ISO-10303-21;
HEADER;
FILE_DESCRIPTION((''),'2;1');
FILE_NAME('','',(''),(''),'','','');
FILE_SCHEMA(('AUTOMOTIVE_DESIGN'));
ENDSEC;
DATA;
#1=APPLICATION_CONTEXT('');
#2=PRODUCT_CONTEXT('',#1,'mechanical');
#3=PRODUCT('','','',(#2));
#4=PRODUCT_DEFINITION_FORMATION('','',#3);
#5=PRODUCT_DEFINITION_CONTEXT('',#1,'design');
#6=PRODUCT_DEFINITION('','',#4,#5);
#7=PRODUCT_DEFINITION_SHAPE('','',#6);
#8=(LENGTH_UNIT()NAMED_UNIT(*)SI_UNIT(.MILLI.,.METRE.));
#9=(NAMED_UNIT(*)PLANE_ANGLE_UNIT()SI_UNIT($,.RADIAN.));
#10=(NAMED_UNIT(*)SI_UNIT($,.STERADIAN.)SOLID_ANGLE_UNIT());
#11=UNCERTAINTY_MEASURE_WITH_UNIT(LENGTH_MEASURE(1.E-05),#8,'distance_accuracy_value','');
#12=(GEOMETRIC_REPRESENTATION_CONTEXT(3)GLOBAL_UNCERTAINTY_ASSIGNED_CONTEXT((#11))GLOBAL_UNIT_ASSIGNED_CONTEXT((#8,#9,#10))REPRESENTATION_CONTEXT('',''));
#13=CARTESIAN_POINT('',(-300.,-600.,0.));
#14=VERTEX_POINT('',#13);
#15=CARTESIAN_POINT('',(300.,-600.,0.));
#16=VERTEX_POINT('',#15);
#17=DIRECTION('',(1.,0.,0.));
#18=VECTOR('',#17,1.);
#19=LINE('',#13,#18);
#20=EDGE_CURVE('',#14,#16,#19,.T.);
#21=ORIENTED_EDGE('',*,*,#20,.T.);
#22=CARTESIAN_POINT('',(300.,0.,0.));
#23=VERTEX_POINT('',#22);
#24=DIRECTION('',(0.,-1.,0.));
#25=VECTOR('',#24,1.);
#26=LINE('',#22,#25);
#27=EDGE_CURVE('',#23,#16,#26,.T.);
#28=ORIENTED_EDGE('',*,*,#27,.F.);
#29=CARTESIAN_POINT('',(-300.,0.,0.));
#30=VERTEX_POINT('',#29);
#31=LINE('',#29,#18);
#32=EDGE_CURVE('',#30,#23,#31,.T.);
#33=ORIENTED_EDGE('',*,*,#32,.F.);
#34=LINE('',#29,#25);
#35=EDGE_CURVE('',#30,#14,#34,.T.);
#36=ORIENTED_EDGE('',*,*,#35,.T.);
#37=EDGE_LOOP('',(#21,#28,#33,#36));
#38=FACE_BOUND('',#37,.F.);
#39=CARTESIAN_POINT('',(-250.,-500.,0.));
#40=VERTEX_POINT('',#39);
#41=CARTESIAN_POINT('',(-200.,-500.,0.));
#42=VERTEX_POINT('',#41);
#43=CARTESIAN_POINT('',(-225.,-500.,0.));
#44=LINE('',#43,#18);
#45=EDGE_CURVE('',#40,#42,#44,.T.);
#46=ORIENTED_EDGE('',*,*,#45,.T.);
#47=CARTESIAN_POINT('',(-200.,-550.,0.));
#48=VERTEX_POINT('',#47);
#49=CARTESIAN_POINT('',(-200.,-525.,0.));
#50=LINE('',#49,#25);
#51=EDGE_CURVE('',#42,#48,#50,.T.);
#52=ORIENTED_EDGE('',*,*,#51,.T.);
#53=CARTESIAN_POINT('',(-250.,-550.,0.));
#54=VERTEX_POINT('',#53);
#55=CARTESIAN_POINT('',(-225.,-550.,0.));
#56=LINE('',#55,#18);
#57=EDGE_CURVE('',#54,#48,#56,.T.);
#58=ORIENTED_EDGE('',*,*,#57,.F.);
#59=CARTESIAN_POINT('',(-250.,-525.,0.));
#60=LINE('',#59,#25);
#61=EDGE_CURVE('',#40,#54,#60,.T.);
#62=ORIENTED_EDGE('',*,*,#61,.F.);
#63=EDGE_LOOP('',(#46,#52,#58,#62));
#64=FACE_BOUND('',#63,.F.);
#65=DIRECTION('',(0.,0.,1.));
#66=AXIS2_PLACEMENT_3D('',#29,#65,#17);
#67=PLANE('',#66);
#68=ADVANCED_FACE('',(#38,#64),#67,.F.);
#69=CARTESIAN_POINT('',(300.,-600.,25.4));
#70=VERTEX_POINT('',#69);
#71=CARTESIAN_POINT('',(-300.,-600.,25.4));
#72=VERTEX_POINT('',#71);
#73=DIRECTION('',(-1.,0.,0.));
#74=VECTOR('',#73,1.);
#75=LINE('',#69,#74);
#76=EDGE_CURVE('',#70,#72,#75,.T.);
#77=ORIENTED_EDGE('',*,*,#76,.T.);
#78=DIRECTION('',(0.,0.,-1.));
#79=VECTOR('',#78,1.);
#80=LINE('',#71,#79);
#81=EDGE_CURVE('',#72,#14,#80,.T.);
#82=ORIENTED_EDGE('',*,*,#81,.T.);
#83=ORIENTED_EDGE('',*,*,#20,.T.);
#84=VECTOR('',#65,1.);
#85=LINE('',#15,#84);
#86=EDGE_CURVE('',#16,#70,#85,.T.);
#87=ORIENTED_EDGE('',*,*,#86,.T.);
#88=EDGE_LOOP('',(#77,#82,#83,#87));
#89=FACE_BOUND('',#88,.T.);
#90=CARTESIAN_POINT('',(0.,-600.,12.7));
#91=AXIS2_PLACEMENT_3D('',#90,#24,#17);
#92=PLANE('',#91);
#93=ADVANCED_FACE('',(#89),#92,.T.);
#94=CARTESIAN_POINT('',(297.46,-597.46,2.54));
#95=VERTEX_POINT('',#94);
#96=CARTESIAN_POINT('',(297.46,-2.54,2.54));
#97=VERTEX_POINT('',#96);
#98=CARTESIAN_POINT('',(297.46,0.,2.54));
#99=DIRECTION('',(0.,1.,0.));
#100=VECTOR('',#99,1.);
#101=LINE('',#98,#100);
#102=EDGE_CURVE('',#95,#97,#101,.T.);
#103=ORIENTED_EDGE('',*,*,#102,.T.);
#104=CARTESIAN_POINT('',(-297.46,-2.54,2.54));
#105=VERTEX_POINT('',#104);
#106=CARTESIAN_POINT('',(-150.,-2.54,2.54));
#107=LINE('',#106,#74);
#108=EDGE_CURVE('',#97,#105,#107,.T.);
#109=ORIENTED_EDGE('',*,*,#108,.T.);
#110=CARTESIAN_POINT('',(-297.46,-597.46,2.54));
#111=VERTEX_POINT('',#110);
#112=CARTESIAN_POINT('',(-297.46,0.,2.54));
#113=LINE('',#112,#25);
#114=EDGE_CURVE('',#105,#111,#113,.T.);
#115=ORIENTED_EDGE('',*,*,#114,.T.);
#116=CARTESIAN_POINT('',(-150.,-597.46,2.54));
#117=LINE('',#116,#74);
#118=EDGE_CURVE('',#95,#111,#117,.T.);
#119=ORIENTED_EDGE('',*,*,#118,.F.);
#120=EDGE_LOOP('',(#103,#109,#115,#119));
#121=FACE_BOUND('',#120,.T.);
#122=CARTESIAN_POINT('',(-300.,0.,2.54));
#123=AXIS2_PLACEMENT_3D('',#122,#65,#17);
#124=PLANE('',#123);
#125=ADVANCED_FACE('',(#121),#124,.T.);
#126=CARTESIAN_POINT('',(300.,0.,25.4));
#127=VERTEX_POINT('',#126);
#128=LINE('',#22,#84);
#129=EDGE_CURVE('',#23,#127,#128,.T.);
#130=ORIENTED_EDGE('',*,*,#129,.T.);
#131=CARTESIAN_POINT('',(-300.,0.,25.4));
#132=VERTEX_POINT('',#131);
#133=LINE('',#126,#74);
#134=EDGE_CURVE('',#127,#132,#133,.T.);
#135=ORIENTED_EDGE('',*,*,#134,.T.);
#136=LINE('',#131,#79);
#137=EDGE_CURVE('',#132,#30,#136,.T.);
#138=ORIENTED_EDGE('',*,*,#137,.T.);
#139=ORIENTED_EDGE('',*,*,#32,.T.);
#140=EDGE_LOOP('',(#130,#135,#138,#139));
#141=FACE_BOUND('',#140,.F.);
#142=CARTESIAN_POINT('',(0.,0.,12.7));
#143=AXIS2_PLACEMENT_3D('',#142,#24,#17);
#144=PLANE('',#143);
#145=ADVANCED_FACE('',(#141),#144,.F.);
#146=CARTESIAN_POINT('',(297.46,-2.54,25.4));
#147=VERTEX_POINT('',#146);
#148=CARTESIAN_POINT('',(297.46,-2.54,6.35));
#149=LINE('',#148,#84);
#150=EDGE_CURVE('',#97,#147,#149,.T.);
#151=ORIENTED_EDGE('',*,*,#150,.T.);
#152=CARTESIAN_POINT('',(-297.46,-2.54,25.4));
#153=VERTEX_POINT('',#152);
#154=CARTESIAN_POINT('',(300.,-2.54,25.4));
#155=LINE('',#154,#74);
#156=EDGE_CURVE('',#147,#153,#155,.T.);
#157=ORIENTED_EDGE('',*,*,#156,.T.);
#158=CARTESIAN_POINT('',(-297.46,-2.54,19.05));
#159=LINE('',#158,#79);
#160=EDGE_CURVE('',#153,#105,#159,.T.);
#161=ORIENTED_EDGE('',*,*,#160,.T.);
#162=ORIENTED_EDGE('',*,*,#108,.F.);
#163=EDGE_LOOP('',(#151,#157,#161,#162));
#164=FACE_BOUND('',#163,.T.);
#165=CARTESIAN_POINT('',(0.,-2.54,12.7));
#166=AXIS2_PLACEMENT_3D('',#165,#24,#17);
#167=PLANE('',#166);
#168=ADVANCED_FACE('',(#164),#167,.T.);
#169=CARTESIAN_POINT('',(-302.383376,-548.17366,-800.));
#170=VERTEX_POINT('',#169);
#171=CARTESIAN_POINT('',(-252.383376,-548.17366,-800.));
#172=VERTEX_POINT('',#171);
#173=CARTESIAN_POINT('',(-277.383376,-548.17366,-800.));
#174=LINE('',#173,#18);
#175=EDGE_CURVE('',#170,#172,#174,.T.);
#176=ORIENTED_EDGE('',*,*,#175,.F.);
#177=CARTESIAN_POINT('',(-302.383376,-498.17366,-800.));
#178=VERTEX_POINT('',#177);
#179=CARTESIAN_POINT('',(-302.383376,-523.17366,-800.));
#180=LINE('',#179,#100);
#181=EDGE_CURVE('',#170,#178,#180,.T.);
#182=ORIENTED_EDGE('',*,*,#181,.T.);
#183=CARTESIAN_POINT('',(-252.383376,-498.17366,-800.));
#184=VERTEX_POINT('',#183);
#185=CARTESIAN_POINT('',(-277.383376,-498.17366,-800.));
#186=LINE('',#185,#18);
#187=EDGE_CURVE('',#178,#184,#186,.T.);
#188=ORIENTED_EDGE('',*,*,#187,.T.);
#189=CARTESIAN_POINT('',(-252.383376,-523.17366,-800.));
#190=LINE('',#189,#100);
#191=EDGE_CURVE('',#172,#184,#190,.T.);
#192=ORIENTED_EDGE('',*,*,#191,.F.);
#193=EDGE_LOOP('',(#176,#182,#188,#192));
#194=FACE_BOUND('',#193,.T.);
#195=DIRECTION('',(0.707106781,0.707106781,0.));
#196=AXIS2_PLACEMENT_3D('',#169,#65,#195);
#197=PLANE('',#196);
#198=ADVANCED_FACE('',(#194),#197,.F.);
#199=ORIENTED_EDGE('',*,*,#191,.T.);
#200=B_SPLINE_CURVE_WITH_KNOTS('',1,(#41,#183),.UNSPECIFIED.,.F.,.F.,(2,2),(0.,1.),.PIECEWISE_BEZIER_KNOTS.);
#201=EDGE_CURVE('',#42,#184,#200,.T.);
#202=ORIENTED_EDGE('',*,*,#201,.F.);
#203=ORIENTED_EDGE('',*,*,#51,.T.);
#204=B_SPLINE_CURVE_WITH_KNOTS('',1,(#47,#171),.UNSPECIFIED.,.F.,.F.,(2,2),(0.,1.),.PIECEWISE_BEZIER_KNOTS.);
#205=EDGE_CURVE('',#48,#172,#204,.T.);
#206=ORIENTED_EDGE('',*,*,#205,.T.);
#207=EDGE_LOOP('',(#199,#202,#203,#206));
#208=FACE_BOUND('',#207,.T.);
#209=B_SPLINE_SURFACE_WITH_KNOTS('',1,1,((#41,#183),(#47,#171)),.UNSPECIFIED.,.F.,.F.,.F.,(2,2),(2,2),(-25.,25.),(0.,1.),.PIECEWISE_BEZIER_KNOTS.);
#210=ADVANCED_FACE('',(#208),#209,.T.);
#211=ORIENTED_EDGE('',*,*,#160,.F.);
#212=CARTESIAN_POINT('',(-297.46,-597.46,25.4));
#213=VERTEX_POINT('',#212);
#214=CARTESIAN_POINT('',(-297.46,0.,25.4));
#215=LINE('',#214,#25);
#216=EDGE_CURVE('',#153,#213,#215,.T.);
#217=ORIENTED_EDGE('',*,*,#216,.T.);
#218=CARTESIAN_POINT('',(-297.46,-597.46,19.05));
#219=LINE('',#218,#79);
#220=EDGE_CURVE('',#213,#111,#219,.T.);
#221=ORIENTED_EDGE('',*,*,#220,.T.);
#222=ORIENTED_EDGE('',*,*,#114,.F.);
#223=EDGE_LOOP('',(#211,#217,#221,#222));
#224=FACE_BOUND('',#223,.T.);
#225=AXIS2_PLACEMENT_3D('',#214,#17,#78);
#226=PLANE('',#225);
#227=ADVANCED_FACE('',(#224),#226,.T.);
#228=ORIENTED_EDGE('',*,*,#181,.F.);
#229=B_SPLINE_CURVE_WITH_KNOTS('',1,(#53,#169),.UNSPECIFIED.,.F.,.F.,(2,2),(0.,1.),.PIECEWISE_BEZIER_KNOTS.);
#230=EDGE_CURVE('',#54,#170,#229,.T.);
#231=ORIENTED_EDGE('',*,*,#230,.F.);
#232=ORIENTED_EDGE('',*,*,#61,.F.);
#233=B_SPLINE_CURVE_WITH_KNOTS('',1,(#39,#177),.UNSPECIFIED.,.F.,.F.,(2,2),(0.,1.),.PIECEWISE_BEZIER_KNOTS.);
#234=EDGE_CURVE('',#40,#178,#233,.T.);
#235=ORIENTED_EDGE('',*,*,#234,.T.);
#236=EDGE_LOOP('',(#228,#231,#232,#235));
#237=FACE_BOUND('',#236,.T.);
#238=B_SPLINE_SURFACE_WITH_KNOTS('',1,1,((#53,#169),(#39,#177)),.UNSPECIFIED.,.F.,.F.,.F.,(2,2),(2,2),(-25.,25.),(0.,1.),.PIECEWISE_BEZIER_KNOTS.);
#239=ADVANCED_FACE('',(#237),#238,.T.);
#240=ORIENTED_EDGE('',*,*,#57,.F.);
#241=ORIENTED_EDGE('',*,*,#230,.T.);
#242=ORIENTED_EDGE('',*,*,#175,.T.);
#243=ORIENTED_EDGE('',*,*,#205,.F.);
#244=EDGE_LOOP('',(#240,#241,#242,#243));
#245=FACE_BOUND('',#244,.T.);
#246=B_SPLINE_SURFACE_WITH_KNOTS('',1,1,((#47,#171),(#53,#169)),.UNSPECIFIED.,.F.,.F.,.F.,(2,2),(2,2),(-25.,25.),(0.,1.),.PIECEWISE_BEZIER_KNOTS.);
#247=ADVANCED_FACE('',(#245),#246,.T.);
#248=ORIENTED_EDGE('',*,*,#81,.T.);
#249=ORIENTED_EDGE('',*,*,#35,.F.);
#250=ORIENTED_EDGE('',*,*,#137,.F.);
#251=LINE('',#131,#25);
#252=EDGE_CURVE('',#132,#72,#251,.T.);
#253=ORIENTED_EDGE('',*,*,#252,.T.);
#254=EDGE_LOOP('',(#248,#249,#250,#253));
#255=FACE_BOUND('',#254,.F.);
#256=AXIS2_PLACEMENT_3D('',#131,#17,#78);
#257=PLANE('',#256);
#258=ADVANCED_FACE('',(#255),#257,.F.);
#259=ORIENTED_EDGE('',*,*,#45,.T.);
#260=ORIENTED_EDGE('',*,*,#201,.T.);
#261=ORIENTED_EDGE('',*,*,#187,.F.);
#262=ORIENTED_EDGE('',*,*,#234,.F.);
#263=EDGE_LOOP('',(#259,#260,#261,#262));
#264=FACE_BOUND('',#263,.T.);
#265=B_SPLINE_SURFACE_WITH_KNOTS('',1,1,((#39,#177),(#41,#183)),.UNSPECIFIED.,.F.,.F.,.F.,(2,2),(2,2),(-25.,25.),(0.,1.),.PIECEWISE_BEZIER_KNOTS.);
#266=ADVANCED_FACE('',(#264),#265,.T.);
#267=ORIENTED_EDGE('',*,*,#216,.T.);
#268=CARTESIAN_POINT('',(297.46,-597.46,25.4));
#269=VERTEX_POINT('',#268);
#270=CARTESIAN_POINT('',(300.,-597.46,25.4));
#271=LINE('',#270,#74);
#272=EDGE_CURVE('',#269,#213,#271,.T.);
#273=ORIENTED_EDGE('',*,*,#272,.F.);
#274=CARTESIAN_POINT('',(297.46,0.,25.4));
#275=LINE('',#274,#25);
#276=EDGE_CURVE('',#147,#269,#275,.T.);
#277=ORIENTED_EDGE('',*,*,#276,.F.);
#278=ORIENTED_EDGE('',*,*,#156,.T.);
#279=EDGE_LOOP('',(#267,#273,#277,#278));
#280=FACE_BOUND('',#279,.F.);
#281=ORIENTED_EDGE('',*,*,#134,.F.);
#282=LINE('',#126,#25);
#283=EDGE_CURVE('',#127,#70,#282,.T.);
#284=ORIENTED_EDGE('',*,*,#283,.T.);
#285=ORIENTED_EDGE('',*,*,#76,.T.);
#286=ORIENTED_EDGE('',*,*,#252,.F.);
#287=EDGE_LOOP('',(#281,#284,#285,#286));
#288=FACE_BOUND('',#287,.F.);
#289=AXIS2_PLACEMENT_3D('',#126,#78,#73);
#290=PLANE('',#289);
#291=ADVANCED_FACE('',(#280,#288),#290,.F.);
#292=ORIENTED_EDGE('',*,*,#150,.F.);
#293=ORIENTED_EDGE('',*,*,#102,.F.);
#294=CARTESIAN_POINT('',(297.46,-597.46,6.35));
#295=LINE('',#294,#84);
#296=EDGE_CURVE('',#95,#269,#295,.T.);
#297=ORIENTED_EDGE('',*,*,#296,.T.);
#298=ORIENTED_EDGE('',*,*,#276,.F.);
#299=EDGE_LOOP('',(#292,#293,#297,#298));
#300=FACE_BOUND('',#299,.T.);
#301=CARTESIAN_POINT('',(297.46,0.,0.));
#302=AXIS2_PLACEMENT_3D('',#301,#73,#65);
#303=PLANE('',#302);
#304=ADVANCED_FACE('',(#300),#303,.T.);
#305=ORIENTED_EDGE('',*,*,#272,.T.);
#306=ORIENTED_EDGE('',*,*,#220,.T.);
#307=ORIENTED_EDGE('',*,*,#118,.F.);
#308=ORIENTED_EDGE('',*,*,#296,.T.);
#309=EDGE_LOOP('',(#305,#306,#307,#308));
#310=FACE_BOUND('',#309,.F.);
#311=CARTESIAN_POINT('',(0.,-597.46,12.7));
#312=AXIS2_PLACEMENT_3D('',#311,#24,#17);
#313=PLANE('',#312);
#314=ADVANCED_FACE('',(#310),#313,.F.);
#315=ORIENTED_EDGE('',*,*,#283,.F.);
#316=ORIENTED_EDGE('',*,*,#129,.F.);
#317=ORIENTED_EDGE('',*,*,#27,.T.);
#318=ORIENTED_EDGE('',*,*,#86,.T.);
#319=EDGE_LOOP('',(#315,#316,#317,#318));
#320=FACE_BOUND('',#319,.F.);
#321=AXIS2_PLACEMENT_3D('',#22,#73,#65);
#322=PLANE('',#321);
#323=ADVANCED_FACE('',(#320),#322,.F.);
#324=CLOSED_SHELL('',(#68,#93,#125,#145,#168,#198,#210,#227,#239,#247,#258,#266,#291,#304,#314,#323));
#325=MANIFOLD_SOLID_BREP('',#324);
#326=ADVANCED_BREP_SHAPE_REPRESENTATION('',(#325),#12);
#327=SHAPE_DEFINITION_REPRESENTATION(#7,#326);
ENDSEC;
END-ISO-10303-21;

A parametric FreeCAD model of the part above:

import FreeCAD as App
import Part
import Sketcher

V = App.Vector


def faces_at(feature, points):
    """Names of the faces that lie closest to the given points."""
    faces = feature.Shape.Faces
    near = lambda p: min(range(len(faces)), key=lambda i: faces[i].distToShape(Part.Vertex(*p))[0])
    return sorted({f"Face{near(p) + 1}" for p in points})


def add_polygon(sketch, points):
    """Adds a closed chain of lines whose ends are joined by coincident constraints."""
    first, n = sketch.GeometryCount, len(points)
    for a, b in zip(points, points[1:] + points[:1]):
        sketch.addGeometry(Part.LineSegment(App.Vector(*a, 0), App.Vector(*b, 0)), False)
    for i in range(n):
        sketch.addConstraint(Sketcher.Constraint("Coincident", first + i, 2, first + (i + 1) % n, 1))

doc = App.newDocument("Part")
body = doc.addObject("PartDesign::Body", "Body")

# Sketch on XZ plane
sketch1 = body.newObject("Sketcher::SketchObject", "Sketch")
sketch1.AttachmentSupport = (doc.getObject("XZ_Plane"), [""])
sketch1.MapMode = "FlatFace"
add_polygon(sketch1, [(300, 25), (-300, 25), (-300, 0), (300, 0)])  # lines 0-3
sketch1.addConstraint([
    Sketcher.Constraint("Horizontal", 0),
    Sketcher.Constraint("Vertical", 1),
    Sketcher.Constraint("Horizontal", 2),
    Sketcher.Constraint("Vertical", 3),
    Sketcher.Constraint("Symmetric", 1, 2, 2, 2, -1, 1),
    Sketcher.Constraint("DistanceX", 0, 2, 0, 1, 600.0),
    Sketcher.Constraint("DistanceY", 1, 2, 1, 1, 25.4),
])
pad1 = body.newObject("PartDesign::Pad", "Pad")
pad1.Profile = sketch1
pad1.Length = 600
doc.recompute()

thickness = body.newObject("PartDesign::Thickness", "Thickness")
thickness.Base = (pad1, faces_at(pad1, [(0, -300, 25.4)]))
thickness.Value = 2.54
thickness.Reversed = True
thickness.Join = "Arc"

# Sketch on XY plane
sketch2 = body.newObject("Sketcher::SketchObject", "Sketch001")
sketch2.AttachmentSupport = (doc.getObject("XY_Plane"), [""])
sketch2.MapMode = "FlatFace"
add_polygon(sketch2, [(-250, -550), (-250, -500), (-200, -500), (-200, -550)])  # lines 0-3
sketch2.addConstraint([
    Sketcher.Constraint("Vertical", 0),
    Sketcher.Constraint("Horizontal", 1),
    Sketcher.Constraint("Vertical", 2),
    Sketcher.Constraint("Horizontal", 3),
    Sketcher.Constraint("Equal", 3, 0),
    Sketcher.Constraint("DistanceX", 1, 1, 1, 2, 50.0),
    Sketcher.Constraint("DistanceX", 0, 2, -1, 1, 250.0),
    Sketcher.Constraint("DistanceY", 0, 2, -1, 1, 500.0),
])

# Sketch on XY plane
sketch3 = body.newObject("Sketcher::SketchObject", "Sketch002")
sketch3.AttachmentSupport = (doc.getObject("XY_Plane"), [""])
sketch3.MapMode = "FlatFace"
sketch3.AttachmentOffset = App.Placement(V(0, 0, -800), App.Rotation())
add_polygon(sketch3, [(-302, -498), (-302, -548), (-252, -548), (-252, -498)])  # lines 0-3
sketch3.addConstraint([
    Sketcher.Constraint("Vertical", 0),
    Sketcher.Constraint("Horizontal", 1),
    Sketcher.Constraint("Vertical", 2),
    Sketcher.Constraint("Horizontal", 3),
    Sketcher.Constraint("Equal", 3, 0),
    Sketcher.Constraint("DistanceX", 1, 1, 1, 2, 50.0),
    Sketcher.Constraint("DistanceY", 0, 2, -1, 1, 548.17366),
    Sketcher.Constraint("DistanceX", 0, 2, -1, 1, 302.383376),
])

additiveloft = body.newObject("PartDesign::AdditiveLoft", "AdditiveLoft")
additiveloft.Profile = sketch2
additiveloft.Sections = [sketch3]

doc.recompute()
